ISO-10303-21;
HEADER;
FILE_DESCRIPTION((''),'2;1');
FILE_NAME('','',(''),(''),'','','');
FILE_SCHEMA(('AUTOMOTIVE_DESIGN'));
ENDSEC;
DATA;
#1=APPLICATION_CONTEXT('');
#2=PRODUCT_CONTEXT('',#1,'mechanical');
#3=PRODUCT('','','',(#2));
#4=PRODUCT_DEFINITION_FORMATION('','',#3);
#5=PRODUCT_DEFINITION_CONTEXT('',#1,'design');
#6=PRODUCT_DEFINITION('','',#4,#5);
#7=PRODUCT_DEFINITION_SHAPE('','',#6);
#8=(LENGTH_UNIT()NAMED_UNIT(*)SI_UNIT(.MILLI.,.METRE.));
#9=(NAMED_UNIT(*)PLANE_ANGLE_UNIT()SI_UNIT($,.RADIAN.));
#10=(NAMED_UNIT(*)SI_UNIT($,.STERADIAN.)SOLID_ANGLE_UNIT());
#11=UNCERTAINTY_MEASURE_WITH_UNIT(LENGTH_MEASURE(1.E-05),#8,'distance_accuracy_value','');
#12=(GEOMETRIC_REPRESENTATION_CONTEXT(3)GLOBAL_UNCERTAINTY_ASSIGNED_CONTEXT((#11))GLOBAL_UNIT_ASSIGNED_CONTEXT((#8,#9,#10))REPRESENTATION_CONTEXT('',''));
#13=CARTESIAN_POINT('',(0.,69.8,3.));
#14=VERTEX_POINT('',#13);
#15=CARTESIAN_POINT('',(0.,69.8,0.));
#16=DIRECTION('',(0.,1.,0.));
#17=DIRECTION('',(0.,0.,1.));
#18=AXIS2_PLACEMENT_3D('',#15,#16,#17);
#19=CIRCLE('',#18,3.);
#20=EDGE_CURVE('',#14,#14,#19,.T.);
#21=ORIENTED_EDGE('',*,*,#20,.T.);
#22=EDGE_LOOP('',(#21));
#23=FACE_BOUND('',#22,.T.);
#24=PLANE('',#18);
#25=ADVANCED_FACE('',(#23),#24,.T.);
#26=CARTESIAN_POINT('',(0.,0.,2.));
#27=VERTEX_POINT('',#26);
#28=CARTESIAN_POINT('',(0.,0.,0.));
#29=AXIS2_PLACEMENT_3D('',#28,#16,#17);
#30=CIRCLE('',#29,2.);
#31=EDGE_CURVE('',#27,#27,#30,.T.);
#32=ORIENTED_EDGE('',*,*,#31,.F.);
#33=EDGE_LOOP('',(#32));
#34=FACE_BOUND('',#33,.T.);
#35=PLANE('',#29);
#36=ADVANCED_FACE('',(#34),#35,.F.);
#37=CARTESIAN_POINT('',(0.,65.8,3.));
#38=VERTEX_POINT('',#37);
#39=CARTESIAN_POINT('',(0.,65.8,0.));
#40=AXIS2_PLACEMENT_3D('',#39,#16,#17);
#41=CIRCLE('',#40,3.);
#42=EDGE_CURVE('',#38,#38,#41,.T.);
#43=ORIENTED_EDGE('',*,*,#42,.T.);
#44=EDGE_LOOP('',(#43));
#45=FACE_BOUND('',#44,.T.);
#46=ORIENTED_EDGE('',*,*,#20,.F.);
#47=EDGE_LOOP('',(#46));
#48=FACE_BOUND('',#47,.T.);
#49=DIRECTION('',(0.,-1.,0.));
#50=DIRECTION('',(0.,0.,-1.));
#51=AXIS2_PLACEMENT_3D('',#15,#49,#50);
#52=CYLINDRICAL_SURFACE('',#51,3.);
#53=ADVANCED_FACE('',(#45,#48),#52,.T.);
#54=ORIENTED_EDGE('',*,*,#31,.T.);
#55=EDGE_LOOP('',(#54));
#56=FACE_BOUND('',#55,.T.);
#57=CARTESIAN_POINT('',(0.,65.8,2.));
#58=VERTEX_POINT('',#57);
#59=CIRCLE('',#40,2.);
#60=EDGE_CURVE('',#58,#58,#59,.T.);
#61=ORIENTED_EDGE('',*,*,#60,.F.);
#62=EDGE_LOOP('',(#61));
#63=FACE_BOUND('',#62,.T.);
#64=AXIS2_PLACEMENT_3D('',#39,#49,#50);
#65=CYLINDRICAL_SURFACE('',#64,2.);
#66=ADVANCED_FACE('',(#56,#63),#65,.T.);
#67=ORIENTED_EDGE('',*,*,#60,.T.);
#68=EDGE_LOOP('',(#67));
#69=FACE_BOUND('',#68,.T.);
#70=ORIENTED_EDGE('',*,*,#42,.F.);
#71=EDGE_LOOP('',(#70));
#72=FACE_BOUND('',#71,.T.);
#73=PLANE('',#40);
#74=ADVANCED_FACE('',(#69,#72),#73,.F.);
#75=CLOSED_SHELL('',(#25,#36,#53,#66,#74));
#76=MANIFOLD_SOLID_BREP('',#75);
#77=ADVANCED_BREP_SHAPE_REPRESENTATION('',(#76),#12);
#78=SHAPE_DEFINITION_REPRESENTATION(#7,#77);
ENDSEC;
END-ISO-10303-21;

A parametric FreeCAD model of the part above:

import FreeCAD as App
import Part
import Sketcher

V = App.Vector
Q = App.Units.Quantity

doc = App.newDocument("Part")
body = doc.addObject("PartDesign::Body", "Body")

# Sketch on XZ plane
sketch1 = body.newObject("Sketcher::SketchObject", "Sketch")
sketch1.AttachmentSupport = (doc.getObject("XZ_Plane"), [""])
sketch1.MapMode = "FlatFace"
sketch1.addGeometry(Part.Circle(V(0, 0, 0), V(0, 0, 1), 2), False)
sketch1.addConstraint(Sketcher.Constraint("Coincident", 0, 3, -1, 1))
sketch1.addConstraint(Sketcher.Constraint("Diameter", 0, Q("4 mm")))
pad1 = body.newObject("PartDesign::Pad", "Pad")
pad1.Profile = sketch1
pad1.Length = 65.8
pad1.Reversed = True

# Sketch on XZ plane
sketch2 = body.newObject("Sketcher::SketchObject", "Sketch001")
sketch2.AttachmentSupport = (doc.getObject("XZ_Plane"), [""])
sketch2.MapMode = "FlatFace"
sketch2.AttachmentOffset = App.Placement(V(0, 0, -65.8), App.Rotation())
sketch2.addGeometry(Part.Circle(V(0, 0, 0), V(0, 0, 1), 3), False)
sketch2.addConstraint(Sketcher.Constraint("Coincident", 0, 3, -1, 1))
sketch2.addConstraint(Sketcher.Constraint("Diameter", 0, Q("6 mm")))
pad2 = body.newObject("PartDesign::Pad", "Pad001")
pad2.Profile = sketch2
pad2.Length = 4
pad2.Reversed = True

doc.recompute()
